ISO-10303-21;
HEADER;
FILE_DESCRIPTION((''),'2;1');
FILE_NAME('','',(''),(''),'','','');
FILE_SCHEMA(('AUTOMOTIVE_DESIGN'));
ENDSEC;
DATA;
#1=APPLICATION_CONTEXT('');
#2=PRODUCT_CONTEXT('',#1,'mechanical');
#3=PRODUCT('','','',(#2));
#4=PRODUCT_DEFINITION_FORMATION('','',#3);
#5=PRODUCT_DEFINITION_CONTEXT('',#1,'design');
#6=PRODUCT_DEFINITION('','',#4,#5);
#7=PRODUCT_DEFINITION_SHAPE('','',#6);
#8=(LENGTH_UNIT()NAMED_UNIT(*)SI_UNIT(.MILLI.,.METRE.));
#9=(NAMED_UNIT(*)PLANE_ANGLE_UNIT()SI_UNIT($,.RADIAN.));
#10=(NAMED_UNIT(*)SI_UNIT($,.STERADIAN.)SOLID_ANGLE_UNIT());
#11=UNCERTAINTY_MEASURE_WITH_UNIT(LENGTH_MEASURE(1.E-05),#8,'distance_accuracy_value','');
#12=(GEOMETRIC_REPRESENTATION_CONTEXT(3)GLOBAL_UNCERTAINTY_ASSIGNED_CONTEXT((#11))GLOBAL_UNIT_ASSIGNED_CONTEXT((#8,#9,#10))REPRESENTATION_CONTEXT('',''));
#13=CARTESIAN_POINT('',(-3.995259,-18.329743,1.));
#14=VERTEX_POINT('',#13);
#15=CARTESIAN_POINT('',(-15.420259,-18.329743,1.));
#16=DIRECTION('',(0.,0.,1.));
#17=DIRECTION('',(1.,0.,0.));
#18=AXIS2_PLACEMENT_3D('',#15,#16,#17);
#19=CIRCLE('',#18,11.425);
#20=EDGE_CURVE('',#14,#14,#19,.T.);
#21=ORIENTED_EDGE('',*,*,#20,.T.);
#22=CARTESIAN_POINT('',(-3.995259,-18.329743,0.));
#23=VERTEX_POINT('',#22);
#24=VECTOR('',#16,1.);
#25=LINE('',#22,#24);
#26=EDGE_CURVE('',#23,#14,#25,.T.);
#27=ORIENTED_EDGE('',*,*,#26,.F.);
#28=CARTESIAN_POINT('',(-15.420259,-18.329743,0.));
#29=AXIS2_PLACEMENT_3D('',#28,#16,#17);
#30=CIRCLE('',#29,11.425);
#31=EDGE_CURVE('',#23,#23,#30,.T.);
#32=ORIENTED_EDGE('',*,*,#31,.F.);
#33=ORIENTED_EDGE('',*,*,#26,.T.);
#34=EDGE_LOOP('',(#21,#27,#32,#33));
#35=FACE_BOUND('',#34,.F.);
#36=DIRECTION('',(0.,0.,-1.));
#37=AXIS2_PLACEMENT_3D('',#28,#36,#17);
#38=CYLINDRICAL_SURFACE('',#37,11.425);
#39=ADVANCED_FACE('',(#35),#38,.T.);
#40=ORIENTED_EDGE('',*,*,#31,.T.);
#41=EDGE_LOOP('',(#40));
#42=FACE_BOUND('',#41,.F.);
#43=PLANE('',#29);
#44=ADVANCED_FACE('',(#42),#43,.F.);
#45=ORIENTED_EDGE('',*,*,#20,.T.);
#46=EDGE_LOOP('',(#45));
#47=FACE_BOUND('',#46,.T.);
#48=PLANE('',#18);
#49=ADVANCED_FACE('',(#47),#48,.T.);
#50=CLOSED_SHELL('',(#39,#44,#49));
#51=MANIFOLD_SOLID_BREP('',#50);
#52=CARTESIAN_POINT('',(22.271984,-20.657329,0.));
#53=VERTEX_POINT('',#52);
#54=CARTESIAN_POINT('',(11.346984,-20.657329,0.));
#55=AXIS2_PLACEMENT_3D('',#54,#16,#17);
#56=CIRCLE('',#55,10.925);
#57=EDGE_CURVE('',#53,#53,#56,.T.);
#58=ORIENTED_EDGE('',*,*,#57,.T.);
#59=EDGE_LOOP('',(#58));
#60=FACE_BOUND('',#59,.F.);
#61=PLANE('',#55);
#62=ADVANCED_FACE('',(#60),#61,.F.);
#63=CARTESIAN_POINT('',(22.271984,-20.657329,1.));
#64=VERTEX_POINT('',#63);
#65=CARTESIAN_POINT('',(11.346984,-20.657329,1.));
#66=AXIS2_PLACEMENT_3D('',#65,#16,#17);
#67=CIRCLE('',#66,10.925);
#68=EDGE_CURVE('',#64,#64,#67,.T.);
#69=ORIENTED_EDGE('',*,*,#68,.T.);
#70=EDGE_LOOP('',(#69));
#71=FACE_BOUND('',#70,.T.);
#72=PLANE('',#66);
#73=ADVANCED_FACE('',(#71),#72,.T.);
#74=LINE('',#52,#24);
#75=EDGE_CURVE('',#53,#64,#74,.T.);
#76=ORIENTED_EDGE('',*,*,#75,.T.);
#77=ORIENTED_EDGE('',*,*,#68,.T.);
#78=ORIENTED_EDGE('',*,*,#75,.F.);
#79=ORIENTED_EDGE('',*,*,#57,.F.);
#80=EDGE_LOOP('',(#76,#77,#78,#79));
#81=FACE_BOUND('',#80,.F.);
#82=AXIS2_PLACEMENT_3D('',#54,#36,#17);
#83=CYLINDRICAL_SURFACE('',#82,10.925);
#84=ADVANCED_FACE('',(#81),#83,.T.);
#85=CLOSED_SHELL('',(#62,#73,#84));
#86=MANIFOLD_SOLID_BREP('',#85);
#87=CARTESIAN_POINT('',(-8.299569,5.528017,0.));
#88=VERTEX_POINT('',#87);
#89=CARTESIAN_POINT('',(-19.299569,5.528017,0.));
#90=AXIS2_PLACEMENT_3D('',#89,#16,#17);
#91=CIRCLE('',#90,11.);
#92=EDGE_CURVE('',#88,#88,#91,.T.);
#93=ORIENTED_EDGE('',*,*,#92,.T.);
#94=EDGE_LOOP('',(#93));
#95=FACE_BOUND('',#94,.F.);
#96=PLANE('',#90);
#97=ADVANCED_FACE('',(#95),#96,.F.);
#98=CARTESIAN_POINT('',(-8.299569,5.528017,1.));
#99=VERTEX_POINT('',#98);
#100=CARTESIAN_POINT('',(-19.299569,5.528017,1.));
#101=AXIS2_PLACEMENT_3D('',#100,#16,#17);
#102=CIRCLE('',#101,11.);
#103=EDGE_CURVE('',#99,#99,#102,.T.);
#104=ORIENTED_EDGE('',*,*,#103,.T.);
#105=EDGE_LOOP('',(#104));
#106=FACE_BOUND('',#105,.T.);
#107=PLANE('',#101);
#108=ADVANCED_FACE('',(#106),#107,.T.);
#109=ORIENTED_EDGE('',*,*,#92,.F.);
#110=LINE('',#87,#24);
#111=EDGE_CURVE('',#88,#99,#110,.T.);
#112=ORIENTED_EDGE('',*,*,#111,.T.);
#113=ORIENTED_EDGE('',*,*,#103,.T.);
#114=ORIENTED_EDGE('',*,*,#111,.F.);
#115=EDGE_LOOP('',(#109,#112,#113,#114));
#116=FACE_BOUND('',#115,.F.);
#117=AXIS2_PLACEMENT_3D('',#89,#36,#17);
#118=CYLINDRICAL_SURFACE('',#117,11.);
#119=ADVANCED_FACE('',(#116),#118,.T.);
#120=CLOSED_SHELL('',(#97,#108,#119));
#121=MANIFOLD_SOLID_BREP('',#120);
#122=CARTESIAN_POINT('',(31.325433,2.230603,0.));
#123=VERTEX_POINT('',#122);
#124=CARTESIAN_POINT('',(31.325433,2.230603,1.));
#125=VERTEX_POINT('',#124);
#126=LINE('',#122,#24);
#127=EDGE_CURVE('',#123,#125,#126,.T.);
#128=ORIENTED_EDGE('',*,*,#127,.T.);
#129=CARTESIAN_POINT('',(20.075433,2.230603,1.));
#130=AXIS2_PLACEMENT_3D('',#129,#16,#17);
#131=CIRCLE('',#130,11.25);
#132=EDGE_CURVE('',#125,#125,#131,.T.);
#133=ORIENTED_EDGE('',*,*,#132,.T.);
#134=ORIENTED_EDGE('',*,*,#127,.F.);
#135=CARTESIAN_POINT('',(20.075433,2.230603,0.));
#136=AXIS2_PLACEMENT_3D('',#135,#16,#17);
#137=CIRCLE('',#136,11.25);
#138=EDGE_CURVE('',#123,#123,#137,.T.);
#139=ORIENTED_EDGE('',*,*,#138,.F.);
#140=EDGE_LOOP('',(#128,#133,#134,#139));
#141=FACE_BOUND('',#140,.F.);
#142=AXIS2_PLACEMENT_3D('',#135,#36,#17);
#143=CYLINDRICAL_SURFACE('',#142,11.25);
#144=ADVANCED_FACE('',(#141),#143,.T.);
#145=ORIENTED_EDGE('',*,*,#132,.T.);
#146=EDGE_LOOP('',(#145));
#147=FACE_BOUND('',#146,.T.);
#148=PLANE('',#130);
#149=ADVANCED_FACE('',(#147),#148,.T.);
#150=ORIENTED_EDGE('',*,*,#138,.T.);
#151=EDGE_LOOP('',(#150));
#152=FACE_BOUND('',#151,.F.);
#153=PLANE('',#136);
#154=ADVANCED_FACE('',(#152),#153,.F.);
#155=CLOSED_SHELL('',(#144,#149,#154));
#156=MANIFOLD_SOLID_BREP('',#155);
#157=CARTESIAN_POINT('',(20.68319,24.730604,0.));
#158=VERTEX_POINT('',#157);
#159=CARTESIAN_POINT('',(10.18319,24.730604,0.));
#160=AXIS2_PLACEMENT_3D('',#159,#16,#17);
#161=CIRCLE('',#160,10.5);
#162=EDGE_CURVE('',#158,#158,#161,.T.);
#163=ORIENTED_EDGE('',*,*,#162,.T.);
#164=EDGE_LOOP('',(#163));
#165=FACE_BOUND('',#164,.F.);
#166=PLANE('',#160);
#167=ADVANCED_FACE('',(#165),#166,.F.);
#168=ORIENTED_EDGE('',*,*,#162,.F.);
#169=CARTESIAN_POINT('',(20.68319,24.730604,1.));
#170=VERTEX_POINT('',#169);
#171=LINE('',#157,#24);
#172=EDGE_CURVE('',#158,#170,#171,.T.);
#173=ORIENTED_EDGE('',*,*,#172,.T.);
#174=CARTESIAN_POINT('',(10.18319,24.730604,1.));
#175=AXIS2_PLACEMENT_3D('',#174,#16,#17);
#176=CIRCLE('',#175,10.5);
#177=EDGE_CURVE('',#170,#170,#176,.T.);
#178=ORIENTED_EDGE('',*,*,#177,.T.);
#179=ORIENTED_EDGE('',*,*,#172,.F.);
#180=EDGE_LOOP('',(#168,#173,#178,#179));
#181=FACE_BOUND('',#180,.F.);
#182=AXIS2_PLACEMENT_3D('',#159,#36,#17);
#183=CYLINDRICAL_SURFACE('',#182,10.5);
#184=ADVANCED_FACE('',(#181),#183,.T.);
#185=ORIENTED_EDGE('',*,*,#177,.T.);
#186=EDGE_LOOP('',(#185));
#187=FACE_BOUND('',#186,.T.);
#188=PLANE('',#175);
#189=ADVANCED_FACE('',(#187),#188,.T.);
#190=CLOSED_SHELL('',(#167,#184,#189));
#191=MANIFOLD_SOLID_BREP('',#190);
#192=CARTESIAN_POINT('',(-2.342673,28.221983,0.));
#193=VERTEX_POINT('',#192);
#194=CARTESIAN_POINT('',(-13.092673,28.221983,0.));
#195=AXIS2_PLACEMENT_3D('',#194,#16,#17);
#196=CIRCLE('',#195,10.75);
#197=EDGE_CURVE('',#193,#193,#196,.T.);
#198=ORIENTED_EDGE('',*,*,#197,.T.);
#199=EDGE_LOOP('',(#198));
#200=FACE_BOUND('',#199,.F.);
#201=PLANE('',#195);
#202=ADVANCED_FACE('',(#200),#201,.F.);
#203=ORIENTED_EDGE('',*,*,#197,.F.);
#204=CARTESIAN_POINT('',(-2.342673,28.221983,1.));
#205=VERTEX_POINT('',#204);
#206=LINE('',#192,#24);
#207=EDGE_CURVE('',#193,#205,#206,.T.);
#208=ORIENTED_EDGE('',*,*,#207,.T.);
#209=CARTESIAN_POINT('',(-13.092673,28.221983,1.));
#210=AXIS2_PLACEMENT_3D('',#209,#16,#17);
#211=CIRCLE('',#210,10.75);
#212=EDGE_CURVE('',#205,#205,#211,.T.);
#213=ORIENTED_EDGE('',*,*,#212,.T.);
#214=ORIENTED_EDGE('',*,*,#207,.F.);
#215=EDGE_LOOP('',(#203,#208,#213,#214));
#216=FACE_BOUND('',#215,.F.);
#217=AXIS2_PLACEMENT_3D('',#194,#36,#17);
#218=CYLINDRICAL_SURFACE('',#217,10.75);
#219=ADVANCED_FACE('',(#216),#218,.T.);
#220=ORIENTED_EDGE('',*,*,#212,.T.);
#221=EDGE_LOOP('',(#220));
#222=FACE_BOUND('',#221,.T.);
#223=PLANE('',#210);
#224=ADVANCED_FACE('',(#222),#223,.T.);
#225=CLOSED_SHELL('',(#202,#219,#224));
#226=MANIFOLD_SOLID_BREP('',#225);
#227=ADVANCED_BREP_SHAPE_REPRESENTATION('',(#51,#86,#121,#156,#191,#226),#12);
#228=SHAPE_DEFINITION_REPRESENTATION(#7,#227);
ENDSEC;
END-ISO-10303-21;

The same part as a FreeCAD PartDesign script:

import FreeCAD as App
import Part
import Sketcher

V = App.Vector

doc = App.newDocument("Part")
body = doc.addObject("PartDesign::Body", "Body")
body.AllowCompound = True

# Sketch on XY plane
sketch1 = body.newObject("Sketcher::SketchObject", "Sketch")
sketch1.AttachmentSupport = (doc.getObject("XY_Plane"), [""])
sketch1.MapMode = "FlatFace"
sketch1.addGeometry([
    Part.Circle(V(11, -21, 0), V(0, 0, 1), 11),  # 0
    Part.Circle(V(20, 2, 0), V(0, 0, 1), 11),  # 1
    Part.Circle(V(10, 25, 0), V(0, 0, 1), 10),  # 2
    Part.Circle(V(-13, 28, 0), V(0, 0, 1), 11),  # 3
    Part.Circle(V(-19, 6, 0), V(0, 0, 1), 11),  # 4
    Part.Circle(V(-15, -18, 0), V(0, 0, 1), 11),  # 5
], False)
sketch1.addConstraint([
    Sketcher.Constraint("Diameter", 2, 21.0),
    Sketcher.Constraint("Diameter", 4, 22.0),
    Sketcher.Constraint("Diameter", 1, 22.5),
    Sketcher.Constraint("Diameter", 3, 21.5),
    Sketcher.Constraint("Diameter", 0, 21.85),
    Sketcher.Constraint("Diameter", 5, 22.85),
    Sketcher.Constraint("DistanceY", 1, 3, 2, 3, 22.500001),
    Sketcher.Constraint("DistanceY", 0, 3, -1, 1, 20.657329),
    Sketcher.Constraint("DistanceX", -1, 1, 2, 3, 10.18319),
    Sketcher.Constraint("DistanceX", 4, 3, -1, 1, 19.299569),
    Sketcher.Constraint("DistanceX", 5, 3, -1, 1, 15.420259),
    Sketcher.Constraint("DistanceX", 0, 3, 1, 3, 8.728449),
    Sketcher.Constraint("DistanceY", 0, 3, 1, 3, 22.887932),
    Sketcher.Constraint("DistanceY", 2, 3, 3, 3, 3.491379),
    Sketcher.Constraint("DistanceY", 5, 3, 4, 3, 23.85776),
    Sketcher.Constraint("DistanceX", 5, 3, 1, 3, 35.495692),
    Sketcher.Constraint("DistanceX", 3, 3, -1, 1, 13.092673),
    Sketcher.Constraint("DistanceY", -1, 1, 4, 3, 5.528017),
])
pad1 = body.newObject("PartDesign::Pad", "Pad")
pad1.Profile = sketch1
pad1.Length = 1

doc.recompute()
